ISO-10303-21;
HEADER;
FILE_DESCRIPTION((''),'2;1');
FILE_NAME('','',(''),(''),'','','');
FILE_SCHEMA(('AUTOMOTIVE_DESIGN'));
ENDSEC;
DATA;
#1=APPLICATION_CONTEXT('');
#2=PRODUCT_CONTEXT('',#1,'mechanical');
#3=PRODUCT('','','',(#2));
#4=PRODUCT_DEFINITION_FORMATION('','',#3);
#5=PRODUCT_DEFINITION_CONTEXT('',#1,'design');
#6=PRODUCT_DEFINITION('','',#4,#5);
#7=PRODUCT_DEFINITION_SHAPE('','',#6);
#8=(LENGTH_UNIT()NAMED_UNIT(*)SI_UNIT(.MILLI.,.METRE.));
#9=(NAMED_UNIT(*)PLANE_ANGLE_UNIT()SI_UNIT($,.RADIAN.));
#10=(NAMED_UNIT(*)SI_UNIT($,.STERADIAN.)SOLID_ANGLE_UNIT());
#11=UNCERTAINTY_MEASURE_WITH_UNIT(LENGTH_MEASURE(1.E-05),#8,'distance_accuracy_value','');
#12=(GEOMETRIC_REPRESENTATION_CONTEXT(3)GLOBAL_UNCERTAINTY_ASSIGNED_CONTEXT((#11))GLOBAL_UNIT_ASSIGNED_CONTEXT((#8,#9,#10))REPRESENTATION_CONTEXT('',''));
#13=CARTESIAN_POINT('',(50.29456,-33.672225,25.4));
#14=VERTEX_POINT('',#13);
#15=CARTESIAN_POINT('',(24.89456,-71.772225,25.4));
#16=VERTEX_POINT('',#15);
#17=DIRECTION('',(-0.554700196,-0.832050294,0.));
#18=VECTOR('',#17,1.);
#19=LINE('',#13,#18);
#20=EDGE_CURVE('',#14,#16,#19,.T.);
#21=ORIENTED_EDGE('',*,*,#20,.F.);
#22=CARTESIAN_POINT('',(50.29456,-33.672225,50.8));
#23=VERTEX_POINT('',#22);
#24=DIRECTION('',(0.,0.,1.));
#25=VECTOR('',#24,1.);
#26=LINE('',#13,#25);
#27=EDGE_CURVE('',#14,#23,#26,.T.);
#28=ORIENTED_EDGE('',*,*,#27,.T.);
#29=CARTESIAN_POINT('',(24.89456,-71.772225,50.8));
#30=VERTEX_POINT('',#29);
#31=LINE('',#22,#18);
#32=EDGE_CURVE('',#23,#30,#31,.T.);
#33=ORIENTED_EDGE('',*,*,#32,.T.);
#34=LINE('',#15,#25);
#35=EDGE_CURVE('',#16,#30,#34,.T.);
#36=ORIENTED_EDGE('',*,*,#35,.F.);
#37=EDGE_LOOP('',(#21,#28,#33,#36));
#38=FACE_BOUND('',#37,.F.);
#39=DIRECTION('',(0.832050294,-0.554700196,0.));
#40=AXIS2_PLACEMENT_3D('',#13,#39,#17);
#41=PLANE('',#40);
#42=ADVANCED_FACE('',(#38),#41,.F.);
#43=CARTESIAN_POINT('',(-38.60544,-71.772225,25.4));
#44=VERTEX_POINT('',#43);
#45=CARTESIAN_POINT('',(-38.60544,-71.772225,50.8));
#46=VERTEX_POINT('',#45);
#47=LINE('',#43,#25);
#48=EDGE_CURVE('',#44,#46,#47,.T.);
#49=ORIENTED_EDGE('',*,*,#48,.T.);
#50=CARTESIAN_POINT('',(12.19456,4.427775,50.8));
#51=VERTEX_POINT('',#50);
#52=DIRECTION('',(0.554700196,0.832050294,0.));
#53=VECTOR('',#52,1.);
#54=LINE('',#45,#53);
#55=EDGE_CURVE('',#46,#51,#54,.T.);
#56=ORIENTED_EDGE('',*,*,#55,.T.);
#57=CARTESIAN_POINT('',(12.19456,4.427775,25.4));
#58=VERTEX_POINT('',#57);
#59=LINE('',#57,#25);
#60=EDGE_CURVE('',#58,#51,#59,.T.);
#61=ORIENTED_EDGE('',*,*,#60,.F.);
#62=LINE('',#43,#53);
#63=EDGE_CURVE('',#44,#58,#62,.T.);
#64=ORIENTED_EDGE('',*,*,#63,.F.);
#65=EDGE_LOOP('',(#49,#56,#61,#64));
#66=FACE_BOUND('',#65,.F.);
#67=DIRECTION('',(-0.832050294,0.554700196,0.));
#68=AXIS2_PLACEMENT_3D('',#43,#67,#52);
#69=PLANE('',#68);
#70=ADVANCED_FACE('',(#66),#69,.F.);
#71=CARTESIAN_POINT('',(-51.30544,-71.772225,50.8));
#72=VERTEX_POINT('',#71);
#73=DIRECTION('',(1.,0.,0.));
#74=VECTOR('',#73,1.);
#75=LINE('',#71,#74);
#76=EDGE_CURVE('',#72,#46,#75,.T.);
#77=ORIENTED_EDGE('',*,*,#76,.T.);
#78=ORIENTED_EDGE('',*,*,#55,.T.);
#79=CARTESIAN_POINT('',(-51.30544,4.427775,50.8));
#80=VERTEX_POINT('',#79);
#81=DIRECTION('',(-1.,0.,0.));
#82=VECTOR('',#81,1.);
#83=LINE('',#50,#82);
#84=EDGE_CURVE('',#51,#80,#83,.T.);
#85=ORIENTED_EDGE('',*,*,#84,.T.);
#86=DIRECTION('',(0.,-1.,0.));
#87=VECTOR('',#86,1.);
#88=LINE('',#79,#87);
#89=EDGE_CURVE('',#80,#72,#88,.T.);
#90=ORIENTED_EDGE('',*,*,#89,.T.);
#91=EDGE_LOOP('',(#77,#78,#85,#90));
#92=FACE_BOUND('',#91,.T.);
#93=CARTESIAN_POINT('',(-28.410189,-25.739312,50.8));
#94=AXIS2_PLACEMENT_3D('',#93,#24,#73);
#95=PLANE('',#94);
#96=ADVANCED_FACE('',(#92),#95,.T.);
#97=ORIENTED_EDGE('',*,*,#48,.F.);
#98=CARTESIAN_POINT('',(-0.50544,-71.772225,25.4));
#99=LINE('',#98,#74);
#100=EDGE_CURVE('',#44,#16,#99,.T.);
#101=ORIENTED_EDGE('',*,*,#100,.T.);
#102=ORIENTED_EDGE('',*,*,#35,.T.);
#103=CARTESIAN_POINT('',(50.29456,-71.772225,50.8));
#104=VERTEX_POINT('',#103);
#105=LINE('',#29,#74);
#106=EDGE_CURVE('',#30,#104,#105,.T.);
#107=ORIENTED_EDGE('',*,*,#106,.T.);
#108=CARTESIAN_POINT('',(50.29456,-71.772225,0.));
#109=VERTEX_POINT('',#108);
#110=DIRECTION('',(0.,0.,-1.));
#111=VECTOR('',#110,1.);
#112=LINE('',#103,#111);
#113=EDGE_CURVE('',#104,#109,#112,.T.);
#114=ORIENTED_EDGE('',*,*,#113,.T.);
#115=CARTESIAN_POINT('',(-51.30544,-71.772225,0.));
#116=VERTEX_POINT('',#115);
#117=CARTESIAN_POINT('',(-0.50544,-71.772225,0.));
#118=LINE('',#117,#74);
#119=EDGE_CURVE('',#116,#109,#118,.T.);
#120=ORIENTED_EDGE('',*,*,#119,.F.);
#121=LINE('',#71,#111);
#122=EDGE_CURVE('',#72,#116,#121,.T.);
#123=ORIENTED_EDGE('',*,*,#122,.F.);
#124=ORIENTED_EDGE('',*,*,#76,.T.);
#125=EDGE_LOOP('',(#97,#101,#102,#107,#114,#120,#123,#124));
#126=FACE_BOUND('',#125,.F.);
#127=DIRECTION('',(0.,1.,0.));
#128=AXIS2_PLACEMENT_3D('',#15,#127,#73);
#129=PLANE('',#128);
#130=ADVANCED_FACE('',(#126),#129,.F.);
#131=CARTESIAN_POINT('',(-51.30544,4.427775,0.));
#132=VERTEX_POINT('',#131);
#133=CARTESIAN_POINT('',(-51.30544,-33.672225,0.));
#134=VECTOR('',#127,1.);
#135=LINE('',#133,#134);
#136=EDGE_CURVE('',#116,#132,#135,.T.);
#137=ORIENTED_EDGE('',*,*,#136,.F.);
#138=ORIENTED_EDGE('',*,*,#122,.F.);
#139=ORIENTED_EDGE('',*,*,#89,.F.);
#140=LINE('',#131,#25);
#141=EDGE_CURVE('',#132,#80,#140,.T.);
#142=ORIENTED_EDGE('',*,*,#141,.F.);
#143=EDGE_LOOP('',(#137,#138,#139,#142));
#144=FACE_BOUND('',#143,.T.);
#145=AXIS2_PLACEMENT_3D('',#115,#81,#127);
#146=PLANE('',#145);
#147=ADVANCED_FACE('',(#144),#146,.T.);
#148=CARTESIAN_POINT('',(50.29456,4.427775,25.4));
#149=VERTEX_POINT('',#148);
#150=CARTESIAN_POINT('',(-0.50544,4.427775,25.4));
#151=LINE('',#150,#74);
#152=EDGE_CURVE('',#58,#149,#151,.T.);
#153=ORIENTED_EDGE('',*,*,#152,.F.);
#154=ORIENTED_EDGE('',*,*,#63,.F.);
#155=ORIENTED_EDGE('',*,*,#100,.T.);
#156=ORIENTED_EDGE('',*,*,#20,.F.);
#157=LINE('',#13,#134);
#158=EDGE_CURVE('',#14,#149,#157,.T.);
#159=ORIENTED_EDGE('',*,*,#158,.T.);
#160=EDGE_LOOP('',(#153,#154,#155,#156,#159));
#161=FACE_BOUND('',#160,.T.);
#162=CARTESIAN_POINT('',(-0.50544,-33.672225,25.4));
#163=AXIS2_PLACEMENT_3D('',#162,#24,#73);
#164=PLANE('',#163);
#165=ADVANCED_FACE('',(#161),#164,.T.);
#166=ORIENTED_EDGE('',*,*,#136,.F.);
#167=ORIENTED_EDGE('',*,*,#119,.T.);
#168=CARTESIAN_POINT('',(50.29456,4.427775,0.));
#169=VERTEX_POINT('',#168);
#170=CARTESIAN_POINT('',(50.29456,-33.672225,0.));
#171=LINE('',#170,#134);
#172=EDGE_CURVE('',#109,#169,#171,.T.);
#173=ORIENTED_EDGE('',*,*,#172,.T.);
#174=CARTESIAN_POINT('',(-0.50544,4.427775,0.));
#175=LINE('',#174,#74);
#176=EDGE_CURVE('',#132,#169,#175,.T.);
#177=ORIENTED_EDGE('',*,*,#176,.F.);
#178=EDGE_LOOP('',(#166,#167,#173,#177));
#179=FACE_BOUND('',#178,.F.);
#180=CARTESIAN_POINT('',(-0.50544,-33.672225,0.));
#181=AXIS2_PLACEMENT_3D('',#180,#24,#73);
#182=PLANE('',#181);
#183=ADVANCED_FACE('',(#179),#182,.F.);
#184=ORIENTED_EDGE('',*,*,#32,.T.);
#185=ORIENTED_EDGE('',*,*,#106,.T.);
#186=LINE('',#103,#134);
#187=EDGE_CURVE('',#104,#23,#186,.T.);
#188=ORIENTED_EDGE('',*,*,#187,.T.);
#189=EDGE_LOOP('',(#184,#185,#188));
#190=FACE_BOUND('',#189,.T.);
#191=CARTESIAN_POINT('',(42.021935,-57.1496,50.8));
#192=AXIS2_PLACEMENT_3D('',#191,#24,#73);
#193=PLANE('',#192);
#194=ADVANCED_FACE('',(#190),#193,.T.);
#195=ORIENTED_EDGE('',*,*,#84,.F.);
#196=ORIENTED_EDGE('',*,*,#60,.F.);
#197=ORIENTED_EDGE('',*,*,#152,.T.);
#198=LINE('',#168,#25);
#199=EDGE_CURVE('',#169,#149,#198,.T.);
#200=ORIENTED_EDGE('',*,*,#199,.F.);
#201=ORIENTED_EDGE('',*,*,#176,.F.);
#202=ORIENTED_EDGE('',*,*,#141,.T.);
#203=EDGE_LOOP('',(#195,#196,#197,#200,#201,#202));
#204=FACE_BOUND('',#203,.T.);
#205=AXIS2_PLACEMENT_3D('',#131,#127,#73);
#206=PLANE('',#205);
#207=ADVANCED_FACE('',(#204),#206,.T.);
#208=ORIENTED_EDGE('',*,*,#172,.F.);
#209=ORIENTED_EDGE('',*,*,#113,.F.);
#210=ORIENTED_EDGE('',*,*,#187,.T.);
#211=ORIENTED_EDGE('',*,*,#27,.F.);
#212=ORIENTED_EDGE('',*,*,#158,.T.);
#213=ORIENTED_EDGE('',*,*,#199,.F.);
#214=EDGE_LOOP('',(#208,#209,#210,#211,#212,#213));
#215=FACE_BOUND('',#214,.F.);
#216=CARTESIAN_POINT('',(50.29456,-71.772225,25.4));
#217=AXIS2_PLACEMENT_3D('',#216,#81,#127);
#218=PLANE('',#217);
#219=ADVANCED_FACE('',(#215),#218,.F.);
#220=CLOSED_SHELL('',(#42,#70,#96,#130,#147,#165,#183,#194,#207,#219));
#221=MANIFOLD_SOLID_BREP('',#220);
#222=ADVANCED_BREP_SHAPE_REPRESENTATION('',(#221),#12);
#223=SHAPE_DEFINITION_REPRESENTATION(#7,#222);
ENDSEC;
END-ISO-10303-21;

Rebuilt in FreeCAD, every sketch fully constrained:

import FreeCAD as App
import Part
import Sketcher
from FreeCAD import Vector
Q = App.Units.Quantity

doc = App.newDocument("Part")
body = doc.addObject("PartDesign::Body", "Body")

# Sketch on XY plane
sketch1 = body.newObject("Sketcher::SketchObject", "Sketch")
sketch1.AttachmentSupport = (doc.getObject("XY_Plane"), [""])
sketch1.MapMode = "FlatFace"
sketch1.addGeometry(Part.LineSegment(Vector(-51, 4, 0), Vector(-51, -72, 0)), False)
sketch1.addGeometry(Part.LineSegment(Vector(-51, -72, 0), Vector(50, -72, 0)), False)
sketch1.addGeometry(Part.LineSegment(Vector(50, -72, 0), Vector(50, 4, 0)), False)
sketch1.addGeometry(Part.LineSegment(Vector(50, 4, 0), Vector(-51, 4, 0)), False)
sketch1.addConstraint(Sketcher.Constraint("Coincident", 0, 2, 1, 1))
sketch1.addConstraint(Sketcher.Constraint("Coincident", 1, 2, 2, 1))
sketch1.addConstraint(Sketcher.Constraint("Coincident", 2, 2, 3, 1))
sketch1.addConstraint(Sketcher.Constraint("Coincident", 3, 2, 0, 1))
sketch1.addConstraint(Sketcher.Constraint("Vertical", 0))
sketch1.addConstraint(Sketcher.Constraint("Horizontal", 1))
sketch1.addConstraint(Sketcher.Constraint("Vertical", 2))
sketch1.addConstraint(Sketcher.Constraint("Horizontal", 3))
sketch1.addConstraint(Sketcher.Constraint("DistanceX", 1, 1, 1, 2, Q("4 in")))
sketch1.addConstraint(Sketcher.Constraint("DistanceY", 0, 2, 0, 1, Q("3 in")))
sketch1.addConstraint(Sketcher.Constraint("DistanceX", 0, 2, -1, 1, 51.30544))
sketch1.addConstraint(Sketcher.Constraint("DistanceY", 0, 2, -1, 1, 71.772225))
pad1 = body.newObject("PartDesign::Pad", "Pad")
pad1.Profile = sketch1
pad1.Length = Q("1 in")

# Sketch on XY plane
sketch2 = body.newObject("Sketcher::SketchObject", "Sketch001")
sketch2.AttachmentSupport = (doc.getObject("XY_Plane"), [""])
sketch2.MapMode = "FlatFace"
sketch2.AttachmentOffset = App.Placement(Vector(0, 0, 1 * 25.4), App.Rotation())
sketch2.addGeometry(Part.LineSegment(Vector(50, -34, 0), Vector(25, -72, 0)), False)
sketch2.addGeometry(Part.LineSegment(Vector(25, -72, 0), Vector(50, -72, 0)), False)
sketch2.addGeometry(Part.LineSegment(Vector(50, -72, 0), Vector(50, -34, 0)), False)
sketch2.addGeometry(Part.LineSegment(Vector(-51, 4, 0), Vector(-51, -72, 0)), False)
sketch2.addGeometry(Part.LineSegment(Vector(-51, -72, 0), Vector(-39, -72, 0)), False)
sketch2.addGeometry(Part.LineSegment(Vector(-39, -72, 0), Vector(12, 4, 0)), False)
sketch2.addGeometry(Part.LineSegment(Vector(12, 4, 0), Vector(-51, 4, 0)), False)
sketch2.addConstraint(Sketcher.Constraint("Coincident", 0, 2, 1, 1))
sketch2.addConstraint(Sketcher.Constraint("Coincident", 1, 2, 2, 1))
sketch2.addConstraint(Sketcher.Constraint("Coincident", 2, 2, 0, 1))
sketch2.addConstraint(Sketcher.Constraint("Coincident", 3, 2, 4, 1))
sketch2.addConstraint(Sketcher.Constraint("Coincident", 4, 2, 5, 1))
sketch2.addConstraint(Sketcher.Constraint("Coincident", 5, 2, 6, 1))
sketch2.addConstraint(Sketcher.Constraint("Coincident", 6, 2, 3, 1))
sketch2.addConstraint(Sketcher.Constraint("Horizontal", 1))
sketch2.addConstraint(Sketcher.Constraint("Vertical", 2))
sketch2.addConstraint(Sketcher.Constraint("Vertical", 3))
sketch2.addConstraint(Sketcher.Constraint("Horizontal", 4))
sketch2.addConstraint(Sketcher.Constraint("Horizontal", 6))
sketch2.addConstraint(Sketcher.Constraint("Parallel", 0, 5))
sketch2.addConstraint(Sketcher.Constraint("Horizontal", 1, 2, 3, 2))
sketch2.addConstraint(Sketcher.Constraint("DistanceX", 1, 1, 1, 2, Q("1 in")))
sketch2.addConstraint(Sketcher.Constraint("DistanceY", 3, 2, 3, 1, Q("3 in")))
sketch2.addConstraint(Sketcher.Constraint("DistanceX", 4, 1, 4, 2, Q("0.5 in")))
sketch2.addConstraint(Sketcher.Constraint("DistanceX", 6, 2, 6, 1, Q("2.5 in")))
sketch2.addConstraint(Sketcher.Constraint("DistanceX", 3, 2, 0, 2, Q("3 in")))
sketch2.addConstraint(Sketcher.Constraint("DistanceX", -1, 1, 0, 2, 24.89456))
sketch2.addConstraint(Sketcher.Constraint("DistanceY", 0, 2, -1, 1, 71.772225))
pad2 = body.newObject("PartDesign::Pad", "Pad001")
pad2.Profile = sketch2
pad2.Length = Q("1 in")

doc.recompute()
